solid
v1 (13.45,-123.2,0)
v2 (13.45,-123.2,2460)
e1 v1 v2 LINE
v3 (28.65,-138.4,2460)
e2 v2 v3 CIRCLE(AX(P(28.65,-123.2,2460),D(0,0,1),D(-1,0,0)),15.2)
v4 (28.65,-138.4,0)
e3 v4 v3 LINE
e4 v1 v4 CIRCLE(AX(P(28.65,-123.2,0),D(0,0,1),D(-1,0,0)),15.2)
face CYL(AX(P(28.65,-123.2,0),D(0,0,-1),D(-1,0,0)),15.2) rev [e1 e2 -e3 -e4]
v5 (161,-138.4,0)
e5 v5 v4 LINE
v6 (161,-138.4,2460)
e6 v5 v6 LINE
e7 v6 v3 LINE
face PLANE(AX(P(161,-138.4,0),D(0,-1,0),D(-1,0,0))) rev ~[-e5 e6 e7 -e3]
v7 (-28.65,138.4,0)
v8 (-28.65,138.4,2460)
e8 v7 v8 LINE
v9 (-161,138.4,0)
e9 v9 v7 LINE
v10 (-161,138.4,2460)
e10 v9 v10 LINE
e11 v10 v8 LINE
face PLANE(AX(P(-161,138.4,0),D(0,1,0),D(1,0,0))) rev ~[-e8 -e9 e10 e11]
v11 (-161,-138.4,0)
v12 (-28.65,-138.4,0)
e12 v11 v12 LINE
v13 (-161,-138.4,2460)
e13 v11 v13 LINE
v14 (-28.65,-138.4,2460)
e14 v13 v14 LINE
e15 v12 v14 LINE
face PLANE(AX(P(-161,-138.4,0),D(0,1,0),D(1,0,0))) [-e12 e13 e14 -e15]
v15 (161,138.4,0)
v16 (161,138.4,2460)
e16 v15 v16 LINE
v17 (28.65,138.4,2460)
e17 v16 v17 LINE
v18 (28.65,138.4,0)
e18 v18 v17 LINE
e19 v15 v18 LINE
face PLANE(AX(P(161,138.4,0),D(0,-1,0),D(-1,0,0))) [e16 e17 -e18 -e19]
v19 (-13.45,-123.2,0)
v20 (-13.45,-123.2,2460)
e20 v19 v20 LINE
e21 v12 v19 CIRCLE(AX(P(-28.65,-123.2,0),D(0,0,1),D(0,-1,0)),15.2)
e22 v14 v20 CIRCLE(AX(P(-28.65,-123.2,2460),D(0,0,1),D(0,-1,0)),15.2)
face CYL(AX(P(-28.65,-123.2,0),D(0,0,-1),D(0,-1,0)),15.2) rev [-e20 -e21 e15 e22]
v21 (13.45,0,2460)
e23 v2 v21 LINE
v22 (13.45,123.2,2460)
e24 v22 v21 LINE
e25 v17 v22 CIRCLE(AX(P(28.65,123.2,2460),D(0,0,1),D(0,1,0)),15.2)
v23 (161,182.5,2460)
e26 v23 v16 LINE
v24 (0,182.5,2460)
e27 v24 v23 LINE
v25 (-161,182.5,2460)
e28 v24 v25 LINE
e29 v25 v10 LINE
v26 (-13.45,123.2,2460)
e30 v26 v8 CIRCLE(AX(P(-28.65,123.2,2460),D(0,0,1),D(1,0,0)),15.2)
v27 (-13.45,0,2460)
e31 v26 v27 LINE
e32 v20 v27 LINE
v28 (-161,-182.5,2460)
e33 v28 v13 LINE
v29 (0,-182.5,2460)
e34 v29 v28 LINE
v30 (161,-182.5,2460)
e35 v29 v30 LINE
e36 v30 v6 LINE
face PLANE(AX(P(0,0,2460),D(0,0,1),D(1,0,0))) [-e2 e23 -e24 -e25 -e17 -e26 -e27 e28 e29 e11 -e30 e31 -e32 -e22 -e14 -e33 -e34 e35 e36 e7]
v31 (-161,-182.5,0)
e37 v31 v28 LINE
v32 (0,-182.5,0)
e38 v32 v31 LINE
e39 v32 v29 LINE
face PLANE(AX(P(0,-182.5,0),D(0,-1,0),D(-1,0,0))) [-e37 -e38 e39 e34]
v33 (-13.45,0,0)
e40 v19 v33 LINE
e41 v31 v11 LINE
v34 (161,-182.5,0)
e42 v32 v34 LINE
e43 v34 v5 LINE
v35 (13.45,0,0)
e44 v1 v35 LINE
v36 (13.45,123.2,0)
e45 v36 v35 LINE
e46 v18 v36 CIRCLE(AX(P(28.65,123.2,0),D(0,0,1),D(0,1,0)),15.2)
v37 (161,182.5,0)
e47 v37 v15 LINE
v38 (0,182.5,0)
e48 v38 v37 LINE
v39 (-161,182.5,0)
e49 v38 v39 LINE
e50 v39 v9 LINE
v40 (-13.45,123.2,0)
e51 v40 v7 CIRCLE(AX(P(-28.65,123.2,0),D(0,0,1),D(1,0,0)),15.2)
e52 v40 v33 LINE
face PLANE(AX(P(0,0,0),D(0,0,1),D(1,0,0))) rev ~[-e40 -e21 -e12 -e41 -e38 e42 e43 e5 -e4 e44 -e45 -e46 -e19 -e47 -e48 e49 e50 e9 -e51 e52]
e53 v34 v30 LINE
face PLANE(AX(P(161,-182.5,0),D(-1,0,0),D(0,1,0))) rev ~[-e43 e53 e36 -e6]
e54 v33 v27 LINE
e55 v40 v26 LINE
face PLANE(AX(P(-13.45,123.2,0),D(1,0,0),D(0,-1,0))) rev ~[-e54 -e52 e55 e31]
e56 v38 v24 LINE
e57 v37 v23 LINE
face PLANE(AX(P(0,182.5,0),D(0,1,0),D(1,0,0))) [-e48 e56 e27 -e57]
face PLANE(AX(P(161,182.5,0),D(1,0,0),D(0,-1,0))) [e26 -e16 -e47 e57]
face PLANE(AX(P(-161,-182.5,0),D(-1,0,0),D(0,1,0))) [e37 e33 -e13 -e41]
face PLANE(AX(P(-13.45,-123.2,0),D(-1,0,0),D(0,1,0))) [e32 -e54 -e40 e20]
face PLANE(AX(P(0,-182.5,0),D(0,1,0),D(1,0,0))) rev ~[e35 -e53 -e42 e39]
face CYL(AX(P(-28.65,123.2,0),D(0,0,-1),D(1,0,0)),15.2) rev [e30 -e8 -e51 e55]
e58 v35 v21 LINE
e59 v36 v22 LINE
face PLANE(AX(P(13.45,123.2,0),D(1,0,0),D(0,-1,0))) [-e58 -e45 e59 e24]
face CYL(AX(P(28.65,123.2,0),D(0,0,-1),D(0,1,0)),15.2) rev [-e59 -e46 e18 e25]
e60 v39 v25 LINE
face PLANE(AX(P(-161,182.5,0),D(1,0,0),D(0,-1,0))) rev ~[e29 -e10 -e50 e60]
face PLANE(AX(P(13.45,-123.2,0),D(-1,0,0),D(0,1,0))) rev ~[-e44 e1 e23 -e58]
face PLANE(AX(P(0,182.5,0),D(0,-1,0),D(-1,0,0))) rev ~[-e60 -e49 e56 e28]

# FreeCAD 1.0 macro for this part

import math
import FreeCAD as App
import Part
import Sketcher
Q = App.Units.Quantity

doc = App.newDocument("Part")
params = doc.addObject("Spreadsheet::Sheet", "Params")
for row, (alias, value) in enumerate([
    ("sketch1_radius", "15.2 mm"),
    ("sketch1_height", "44.1 mm"),
    ("pad1_length", "2460 mm"),
], start=1):
    params.set(f"A{row}", alias)
    params.set(f"B{row}", "=" + value)
    params.setAlias(f"B{row}", alias)

body = doc.addObject("PartDesign::Body", "Body")

sketch1 = body.newObject("Sketcher::SketchObject", "Sketch")
sketch1.AttachmentSupport = (doc.getObject("XY_Plane"), [""])
sketch1.MapMode = "FlatFace"
sketch1.addGeometry([
    Part.LineSegment(App.Vector(-161, -138, 0), App.Vector(-161, -182, 0)),
    Part.LineSegment(App.Vector(-161, -182, 0), App.Vector(161, -182, 0)),
    Part.LineSegment(App.Vector(161, -182, 0), App.Vector(161, -138, 0)),
    Part.LineSegment(App.Vector(161, -138, 0), App.Vector(29, -138, 0)),
    Part.ArcOfCircle(Part.Circle(App.Vector(29, -123, 0), App.Vector(0, 0, 1), 15), math.radians(180), math.radians(270)),
    Part.LineSegment(App.Vector(13, -123, 0), App.Vector(13, 123, 0)),
    Part.ArcOfCircle(Part.Circle(App.Vector(29, 123, 0), App.Vector(0, 0, 1), 15), math.radians(90), math.radians(180)),
    Part.LineSegment(App.Vector(29, 138, 0), App.Vector(161, 138, 0)),
    Part.LineSegment(App.Vector(161, 138, 0), App.Vector(161, 182, 0)),
    Part.LineSegment(App.Vector(161, 182, 0), App.Vector(-161, 182, 0)),
    Part.LineSegment(App.Vector(-161, 182, 0), App.Vector(-161, 138, 0)),
    Part.LineSegment(App.Vector(-161, 138, 0), App.Vector(-29, 138, 0)),
    Part.ArcOfCircle(Part.Circle(App.Vector(-29, 123, 0), App.Vector(0, 0, 1), 15), math.radians(0), math.radians(90)),
    Part.LineSegment(App.Vector(-13, 123, 0), App.Vector(-13, -123, 0)),
    Part.ArcOfCircle(Part.Circle(App.Vector(-29, -123, 0), App.Vector(0, 0, 1), 15), math.radians(-90), math.radians(0)),
    Part.LineSegment(App.Vector(-29, -138, 0), App.Vector(-161, -138, 0)),
], False)
sketch1.addConstraint([
    Sketcher.Constraint("Coincident", 0, 2, 1, 1),
    Sketcher.Constraint("Coincident", 1, 2, 2, 1),
    Sketcher.Constraint("Coincident", 2, 2, 3, 1),
    Sketcher.Constraint("Tangent", 3, 2, 4, 2),
    Sketcher.Constraint("Tangent", 4, 1, 5, 1),
    Sketcher.Constraint("Tangent", 5, 2, 6, 2),
    Sketcher.Constraint("Tangent", 6, 1, 7, 1),
    Sketcher.Constraint("Coincident", 7, 2, 8, 1),
    Sketcher.Constraint("Coincident", 8, 2, 9, 1),
    Sketcher.Constraint("Coincident", 9, 2, 10, 1),
    Sketcher.Constraint("Coincident", 10, 2, 11, 1),
    Sketcher.Constraint("Tangent", 11, 2, 12, 2),
    Sketcher.Constraint("Tangent", 12, 1, 13, 1),
    Sketcher.Constraint("Tangent", 13, 2, 14, 2),
    Sketcher.Constraint("Tangent", 14, 1, 15, 1),
    Sketcher.Constraint("Coincident", 15, 2, 0, 1),
    Sketcher.Constraint("Vertical", 0),
    Sketcher.Constraint("Horizontal", 1),
    Sketcher.Constraint("Vertical", 2),
    Sketcher.Constraint("Horizontal", 3),
    Sketcher.Constraint("Vertical", 5),
    Sketcher.Constraint("Horizontal", 7),
    Sketcher.Constraint("Vertical", 8),
    Sketcher.Constraint("Horizontal", 9),
    Sketcher.Constraint("Vertical", 10),
    Sketcher.Constraint("Horizontal", 11),
    Sketcher.Constraint("Vertical", 13),
    Sketcher.Constraint("Horizontal", 15),
    Sketcher.Constraint("Equal", 4, 6),
    Sketcher.Constraint("Equal", 6, 12),
    Sketcher.Constraint("Equal", 12, 14),
    Sketcher.Constraint("Symmetric", 4, 3, 12, 3, -1, 1),
    Sketcher.Constraint("Symmetric", 0, 2, 8, 2, -1, 1),
    Sketcher.Constraint("Symmetric", 7, 2, 10, 2, -2),
    Sketcher.Constraint("Symmetric", 2, 2, 15, 2, -2),
    Sketcher.Constraint("Radius", 4, Q("15.2 mm")),
    Sketcher.Constraint("DistanceY", 0, 2, 0, 1, Q("44.1 mm")),
    Sketcher.Constraint("DistanceX", 0, 2, -1, 1, Q("161 mm")),
    Sketcher.Constraint("DistanceY", 0, 2, -1, 1, Q("182.5 mm")),
    Sketcher.Constraint("DistanceX", -1, 1, 4, 1, Q("13.45 mm")),
])
sketch1.setExpression("Constraints[35]", "Params.sketch1_radius")
sketch1.setExpression("Constraints[36]", "Params.sketch1_height")
pad1 = body.newObject("PartDesign::Pad", "Pad")
pad1.Profile = sketch1
pad1.setExpression("Length", "Params.pad1_length")

doc.recompute()
